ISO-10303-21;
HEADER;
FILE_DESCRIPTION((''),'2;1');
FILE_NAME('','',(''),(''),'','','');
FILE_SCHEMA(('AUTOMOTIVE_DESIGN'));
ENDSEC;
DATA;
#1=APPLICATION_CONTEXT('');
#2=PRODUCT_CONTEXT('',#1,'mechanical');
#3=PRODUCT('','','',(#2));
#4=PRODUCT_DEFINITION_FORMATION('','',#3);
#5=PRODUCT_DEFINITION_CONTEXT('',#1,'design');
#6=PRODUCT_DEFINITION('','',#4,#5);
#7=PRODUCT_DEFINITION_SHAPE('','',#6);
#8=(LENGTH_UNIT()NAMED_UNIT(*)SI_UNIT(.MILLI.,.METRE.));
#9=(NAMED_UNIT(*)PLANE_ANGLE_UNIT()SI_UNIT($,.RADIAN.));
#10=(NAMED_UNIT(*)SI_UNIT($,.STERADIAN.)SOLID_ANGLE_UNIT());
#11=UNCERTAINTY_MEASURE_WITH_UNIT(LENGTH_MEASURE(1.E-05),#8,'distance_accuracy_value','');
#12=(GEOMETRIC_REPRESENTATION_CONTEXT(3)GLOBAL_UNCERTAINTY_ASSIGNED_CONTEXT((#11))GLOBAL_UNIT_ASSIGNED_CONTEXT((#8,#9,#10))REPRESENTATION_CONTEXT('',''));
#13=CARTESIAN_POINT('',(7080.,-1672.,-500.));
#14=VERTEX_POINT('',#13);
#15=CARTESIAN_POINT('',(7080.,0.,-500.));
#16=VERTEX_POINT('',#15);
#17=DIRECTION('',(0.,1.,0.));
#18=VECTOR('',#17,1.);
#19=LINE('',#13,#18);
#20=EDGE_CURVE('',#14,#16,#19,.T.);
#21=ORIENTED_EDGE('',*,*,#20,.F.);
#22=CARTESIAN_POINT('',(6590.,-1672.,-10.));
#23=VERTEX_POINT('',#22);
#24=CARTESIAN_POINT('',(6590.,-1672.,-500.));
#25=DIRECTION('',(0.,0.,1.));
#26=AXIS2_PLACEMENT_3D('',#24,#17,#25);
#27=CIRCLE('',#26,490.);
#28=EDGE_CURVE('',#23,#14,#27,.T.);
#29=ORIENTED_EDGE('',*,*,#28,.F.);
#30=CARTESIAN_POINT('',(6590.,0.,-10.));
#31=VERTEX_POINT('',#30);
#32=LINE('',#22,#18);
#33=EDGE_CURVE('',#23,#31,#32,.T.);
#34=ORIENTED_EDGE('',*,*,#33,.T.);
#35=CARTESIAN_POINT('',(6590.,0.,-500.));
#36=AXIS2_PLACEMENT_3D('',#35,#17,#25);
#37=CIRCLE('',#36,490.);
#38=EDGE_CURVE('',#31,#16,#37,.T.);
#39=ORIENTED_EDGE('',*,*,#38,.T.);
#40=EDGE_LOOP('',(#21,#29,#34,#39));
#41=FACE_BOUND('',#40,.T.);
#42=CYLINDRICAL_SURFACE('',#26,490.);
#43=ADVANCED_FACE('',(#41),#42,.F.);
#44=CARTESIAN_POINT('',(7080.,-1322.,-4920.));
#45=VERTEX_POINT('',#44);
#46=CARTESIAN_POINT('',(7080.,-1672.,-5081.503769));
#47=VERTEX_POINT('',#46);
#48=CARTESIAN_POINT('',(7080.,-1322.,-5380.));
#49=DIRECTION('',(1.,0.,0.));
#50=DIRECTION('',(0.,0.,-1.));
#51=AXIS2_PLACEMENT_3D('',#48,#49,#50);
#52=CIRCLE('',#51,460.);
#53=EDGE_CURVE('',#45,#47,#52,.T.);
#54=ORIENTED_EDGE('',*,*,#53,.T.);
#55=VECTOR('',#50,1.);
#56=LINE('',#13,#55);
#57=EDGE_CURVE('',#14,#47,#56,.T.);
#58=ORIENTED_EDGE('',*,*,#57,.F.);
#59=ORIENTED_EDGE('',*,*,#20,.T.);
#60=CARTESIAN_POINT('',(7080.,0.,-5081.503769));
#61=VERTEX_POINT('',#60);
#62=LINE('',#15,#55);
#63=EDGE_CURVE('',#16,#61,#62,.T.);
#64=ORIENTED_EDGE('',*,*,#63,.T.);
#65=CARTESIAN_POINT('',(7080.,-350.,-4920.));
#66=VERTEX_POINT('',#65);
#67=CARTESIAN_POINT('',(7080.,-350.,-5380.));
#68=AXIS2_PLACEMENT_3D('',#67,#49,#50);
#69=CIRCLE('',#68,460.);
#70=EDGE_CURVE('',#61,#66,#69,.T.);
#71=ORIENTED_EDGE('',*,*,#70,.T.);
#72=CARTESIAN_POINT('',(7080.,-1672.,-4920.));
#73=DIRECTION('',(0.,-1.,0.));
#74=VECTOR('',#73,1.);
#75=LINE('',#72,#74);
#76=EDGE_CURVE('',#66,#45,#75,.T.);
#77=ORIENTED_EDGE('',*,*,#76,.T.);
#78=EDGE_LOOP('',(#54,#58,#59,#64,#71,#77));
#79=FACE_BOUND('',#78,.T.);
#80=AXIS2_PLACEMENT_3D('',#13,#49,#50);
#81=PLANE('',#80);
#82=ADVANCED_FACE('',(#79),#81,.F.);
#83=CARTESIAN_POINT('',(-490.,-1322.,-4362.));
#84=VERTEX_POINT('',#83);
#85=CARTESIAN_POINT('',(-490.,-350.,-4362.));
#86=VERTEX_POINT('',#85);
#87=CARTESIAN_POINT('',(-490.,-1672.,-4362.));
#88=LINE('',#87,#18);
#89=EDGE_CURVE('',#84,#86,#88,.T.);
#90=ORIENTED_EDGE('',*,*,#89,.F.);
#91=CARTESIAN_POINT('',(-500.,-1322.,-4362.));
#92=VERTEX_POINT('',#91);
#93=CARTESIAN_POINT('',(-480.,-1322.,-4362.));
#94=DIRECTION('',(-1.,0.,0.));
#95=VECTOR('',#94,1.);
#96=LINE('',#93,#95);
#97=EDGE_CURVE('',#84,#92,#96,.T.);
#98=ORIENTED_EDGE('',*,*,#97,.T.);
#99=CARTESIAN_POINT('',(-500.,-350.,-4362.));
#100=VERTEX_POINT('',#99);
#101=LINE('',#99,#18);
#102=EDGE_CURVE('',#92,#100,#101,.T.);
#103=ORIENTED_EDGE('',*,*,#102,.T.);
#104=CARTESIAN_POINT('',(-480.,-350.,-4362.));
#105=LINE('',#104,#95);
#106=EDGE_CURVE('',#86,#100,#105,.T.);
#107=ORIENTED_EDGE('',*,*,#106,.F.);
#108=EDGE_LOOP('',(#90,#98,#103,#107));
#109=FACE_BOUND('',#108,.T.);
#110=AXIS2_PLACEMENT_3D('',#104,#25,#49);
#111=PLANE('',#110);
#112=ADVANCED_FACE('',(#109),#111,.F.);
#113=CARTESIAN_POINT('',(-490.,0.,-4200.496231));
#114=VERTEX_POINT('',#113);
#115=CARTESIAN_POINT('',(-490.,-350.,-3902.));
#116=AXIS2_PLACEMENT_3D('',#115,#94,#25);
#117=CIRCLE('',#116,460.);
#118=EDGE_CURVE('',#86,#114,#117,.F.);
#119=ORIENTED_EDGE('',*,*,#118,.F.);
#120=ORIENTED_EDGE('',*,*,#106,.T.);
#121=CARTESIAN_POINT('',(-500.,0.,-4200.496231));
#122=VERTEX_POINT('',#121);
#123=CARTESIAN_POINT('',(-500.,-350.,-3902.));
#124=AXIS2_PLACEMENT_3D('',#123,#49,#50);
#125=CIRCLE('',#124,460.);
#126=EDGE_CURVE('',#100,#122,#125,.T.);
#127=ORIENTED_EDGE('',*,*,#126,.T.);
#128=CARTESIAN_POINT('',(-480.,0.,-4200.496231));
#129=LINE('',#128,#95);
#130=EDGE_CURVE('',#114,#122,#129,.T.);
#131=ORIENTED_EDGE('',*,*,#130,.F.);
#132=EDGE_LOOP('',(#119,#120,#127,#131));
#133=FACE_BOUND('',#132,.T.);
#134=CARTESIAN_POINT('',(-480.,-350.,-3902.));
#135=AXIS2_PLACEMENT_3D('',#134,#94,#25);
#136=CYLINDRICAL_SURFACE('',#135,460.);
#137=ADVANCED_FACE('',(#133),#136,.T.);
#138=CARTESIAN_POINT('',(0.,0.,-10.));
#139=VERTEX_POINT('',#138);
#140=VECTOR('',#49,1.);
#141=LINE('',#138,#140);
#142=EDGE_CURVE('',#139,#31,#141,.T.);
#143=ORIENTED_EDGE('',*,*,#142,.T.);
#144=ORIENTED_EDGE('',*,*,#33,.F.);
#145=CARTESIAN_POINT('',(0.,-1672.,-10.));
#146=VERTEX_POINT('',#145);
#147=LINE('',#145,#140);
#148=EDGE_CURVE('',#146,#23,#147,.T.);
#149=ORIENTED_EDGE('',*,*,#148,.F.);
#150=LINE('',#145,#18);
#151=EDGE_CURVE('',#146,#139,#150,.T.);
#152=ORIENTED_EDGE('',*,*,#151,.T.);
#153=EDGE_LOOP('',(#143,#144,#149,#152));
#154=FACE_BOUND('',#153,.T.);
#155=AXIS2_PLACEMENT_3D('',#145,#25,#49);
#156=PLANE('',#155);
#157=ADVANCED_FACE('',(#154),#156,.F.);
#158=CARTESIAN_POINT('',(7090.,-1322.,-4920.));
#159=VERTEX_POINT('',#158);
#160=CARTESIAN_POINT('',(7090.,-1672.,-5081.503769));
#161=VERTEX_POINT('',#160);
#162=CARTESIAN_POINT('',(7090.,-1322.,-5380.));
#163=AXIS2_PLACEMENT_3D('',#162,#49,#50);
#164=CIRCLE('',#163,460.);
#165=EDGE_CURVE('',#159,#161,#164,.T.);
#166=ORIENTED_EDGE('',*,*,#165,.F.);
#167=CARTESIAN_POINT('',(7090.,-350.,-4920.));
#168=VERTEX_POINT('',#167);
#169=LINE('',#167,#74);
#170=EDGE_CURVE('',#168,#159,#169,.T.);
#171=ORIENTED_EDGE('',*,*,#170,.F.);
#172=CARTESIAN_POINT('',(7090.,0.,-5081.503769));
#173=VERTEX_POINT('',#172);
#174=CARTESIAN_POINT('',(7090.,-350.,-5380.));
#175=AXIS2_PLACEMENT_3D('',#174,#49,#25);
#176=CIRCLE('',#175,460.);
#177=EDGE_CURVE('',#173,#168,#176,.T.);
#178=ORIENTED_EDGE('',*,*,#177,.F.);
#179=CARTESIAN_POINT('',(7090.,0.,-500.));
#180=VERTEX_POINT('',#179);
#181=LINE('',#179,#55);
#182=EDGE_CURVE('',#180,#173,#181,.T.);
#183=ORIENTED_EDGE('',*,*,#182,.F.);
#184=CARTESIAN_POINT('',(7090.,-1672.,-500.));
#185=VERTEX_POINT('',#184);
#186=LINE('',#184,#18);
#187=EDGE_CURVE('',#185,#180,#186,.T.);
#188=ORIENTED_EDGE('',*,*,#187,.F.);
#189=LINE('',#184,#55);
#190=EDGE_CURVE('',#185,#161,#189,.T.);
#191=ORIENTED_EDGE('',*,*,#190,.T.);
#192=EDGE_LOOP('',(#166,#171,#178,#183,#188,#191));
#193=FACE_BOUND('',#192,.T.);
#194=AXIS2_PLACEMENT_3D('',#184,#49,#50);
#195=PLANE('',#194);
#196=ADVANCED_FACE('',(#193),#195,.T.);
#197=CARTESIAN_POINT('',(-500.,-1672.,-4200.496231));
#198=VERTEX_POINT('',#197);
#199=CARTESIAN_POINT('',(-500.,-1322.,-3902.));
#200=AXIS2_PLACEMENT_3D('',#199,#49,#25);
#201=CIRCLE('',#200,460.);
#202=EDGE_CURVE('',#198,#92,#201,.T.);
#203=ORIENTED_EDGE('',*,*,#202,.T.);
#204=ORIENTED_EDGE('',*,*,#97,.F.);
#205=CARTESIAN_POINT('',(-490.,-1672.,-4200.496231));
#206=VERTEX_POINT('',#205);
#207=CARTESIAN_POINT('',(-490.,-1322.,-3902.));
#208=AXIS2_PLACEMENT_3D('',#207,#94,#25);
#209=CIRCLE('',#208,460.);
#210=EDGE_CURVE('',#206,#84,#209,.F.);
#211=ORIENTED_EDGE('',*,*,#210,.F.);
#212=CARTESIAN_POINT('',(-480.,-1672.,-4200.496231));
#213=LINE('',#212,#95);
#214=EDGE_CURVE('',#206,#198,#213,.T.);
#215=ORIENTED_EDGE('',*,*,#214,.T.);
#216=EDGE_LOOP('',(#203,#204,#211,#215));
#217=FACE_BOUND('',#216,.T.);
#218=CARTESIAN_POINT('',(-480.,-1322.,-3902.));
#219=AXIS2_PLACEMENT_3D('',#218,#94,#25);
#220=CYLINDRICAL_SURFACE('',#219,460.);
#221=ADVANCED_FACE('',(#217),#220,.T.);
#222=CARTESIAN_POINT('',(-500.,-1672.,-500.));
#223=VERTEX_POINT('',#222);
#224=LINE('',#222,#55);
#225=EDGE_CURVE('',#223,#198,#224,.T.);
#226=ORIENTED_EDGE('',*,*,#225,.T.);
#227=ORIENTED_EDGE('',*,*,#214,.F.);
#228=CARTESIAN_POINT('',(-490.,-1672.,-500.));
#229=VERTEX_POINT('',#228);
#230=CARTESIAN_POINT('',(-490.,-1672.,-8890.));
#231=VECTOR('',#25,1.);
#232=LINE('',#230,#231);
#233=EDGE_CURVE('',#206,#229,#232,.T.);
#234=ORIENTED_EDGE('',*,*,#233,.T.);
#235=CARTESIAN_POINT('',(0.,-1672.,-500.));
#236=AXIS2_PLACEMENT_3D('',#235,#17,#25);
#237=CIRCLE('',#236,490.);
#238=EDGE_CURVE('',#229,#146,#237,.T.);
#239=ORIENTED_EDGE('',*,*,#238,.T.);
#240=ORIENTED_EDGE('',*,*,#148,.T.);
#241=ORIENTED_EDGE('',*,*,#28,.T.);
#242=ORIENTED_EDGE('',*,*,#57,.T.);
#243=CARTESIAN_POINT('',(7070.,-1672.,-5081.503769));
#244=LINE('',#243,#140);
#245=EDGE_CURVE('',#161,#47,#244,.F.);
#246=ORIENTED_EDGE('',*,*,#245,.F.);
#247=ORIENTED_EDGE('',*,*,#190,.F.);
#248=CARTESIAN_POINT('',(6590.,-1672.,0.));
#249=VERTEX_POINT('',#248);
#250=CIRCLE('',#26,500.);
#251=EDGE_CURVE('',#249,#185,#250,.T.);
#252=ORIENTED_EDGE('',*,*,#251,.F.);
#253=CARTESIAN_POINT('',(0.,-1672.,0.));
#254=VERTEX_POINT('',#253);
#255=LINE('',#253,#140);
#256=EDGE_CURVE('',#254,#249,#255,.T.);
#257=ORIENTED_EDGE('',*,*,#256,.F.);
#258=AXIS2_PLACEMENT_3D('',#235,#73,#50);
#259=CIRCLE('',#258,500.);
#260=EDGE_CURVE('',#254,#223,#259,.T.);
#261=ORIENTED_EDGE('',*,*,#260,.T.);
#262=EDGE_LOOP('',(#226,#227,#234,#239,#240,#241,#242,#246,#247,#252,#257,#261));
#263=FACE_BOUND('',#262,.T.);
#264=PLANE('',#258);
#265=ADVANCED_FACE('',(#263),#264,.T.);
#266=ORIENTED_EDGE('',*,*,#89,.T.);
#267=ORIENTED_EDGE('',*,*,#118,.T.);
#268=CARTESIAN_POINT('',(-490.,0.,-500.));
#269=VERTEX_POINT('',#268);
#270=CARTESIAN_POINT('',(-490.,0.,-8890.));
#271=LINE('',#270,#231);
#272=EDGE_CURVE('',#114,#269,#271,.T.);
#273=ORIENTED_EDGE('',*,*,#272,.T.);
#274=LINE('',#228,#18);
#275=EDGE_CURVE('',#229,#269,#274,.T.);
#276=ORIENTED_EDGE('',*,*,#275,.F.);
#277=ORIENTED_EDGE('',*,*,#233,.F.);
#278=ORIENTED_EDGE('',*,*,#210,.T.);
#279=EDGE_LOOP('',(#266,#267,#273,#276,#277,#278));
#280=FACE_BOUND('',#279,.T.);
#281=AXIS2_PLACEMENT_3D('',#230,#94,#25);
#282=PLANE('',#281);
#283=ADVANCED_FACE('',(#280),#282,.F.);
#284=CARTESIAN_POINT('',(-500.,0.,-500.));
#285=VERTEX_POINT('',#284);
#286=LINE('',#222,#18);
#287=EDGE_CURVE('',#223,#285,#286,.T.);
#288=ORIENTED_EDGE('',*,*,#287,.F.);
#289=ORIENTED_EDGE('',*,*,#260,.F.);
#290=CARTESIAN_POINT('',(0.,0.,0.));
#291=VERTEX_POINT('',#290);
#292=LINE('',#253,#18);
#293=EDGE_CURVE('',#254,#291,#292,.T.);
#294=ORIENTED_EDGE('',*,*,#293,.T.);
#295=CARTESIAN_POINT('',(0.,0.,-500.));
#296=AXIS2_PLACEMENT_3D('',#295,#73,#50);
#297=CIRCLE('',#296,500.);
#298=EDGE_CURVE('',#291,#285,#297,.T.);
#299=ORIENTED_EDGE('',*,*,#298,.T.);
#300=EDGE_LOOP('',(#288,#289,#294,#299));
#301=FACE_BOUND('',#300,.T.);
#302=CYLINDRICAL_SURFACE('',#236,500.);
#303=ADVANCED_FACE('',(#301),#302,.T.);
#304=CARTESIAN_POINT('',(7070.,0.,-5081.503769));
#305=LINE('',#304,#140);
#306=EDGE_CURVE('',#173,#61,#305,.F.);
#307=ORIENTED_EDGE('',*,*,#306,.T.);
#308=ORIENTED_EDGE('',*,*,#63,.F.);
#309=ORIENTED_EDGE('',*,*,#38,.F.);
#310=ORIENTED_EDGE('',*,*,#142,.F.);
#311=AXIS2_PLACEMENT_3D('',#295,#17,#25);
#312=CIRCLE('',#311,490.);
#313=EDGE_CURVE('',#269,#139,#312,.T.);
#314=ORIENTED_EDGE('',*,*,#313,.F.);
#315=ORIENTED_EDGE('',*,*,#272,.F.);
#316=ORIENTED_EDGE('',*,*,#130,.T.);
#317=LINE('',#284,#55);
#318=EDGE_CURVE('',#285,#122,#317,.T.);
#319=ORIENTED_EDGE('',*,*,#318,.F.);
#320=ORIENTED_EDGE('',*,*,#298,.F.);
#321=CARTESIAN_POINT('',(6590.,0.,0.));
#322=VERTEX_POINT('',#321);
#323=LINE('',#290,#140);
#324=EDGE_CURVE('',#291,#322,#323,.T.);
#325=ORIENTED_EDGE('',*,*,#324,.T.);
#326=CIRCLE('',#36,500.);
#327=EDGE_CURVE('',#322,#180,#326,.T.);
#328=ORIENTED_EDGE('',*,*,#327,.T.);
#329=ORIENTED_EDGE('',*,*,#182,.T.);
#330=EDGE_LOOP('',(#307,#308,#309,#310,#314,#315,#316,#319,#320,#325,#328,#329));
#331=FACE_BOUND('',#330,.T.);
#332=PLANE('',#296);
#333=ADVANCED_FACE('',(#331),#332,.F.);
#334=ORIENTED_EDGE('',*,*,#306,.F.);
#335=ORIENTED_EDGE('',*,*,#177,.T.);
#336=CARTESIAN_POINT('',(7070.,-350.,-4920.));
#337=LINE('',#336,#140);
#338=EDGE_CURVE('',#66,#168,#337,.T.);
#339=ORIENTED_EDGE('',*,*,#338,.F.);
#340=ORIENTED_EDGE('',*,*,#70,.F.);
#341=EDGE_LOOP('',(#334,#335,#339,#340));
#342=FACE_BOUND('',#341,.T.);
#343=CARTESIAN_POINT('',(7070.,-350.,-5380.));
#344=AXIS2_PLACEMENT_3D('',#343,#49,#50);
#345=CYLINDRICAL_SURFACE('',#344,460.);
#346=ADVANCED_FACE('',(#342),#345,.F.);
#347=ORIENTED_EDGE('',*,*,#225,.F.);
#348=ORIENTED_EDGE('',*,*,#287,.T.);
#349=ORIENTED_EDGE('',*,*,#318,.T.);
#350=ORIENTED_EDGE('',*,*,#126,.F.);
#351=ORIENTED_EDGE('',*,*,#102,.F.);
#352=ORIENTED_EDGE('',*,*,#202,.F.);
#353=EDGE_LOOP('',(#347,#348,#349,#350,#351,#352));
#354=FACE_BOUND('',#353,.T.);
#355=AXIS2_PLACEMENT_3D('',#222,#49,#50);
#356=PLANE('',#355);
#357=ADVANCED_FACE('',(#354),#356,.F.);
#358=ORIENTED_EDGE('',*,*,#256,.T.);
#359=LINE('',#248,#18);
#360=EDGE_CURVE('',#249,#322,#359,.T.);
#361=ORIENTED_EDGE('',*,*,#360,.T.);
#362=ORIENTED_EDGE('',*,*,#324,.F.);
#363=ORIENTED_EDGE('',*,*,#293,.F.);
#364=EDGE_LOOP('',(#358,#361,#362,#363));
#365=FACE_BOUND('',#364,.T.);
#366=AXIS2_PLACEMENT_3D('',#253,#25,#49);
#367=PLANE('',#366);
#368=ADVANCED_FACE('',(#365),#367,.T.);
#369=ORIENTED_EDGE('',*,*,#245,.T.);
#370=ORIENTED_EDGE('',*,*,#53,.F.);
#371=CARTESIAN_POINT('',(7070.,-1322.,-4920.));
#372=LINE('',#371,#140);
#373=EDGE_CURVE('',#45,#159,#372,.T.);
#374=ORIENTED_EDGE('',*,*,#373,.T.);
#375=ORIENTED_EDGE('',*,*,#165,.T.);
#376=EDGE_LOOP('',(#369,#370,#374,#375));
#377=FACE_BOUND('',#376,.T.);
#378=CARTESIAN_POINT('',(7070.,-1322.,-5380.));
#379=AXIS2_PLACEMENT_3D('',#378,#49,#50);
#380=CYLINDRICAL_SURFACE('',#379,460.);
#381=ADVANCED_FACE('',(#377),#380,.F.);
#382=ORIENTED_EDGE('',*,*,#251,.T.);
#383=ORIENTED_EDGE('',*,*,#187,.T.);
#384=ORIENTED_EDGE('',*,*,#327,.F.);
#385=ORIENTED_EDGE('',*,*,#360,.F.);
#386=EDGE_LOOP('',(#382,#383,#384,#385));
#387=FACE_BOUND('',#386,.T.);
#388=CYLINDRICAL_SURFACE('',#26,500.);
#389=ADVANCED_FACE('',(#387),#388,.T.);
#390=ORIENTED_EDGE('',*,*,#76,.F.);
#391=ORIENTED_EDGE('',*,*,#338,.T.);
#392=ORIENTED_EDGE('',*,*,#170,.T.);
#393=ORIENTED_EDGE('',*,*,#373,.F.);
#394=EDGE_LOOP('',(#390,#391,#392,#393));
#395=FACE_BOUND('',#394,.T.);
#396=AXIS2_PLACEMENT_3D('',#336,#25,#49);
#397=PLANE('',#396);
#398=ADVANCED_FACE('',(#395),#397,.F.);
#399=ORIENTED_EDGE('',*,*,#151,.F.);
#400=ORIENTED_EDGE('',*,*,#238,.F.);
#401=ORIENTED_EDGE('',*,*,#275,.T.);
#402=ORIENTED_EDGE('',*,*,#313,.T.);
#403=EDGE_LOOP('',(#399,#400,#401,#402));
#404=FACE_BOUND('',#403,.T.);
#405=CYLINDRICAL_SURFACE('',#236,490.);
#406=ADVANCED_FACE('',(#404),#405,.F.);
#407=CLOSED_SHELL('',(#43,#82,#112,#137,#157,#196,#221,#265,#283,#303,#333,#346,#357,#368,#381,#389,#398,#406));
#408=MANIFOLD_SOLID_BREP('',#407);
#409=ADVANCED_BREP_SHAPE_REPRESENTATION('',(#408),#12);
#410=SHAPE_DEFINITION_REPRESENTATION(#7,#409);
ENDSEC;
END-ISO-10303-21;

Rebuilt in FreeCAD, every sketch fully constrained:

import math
import FreeCAD as App
import Part
import Sketcher
Q = App.Units.Quantity

doc = App.newDocument("Part")
body = doc.addObject("PartDesign::Body", "Body")

sketch1 = body.newObject("Sketcher::SketchObject", "Sketch")
sketch1.AttachmentSupport = (doc.getObject("XZ_Plane"), [""])
sketch1.MapMode = "FlatFace"
sketch1.addGeometry([
    Part.LineSegment(App.Vector(0, 0, 0), App.Vector(6590, 0, 0)),
    Part.ArcOfCircle(Part.Circle(App.Vector(6590, -500, 0), App.Vector(0, 0, 1), 500), math.radians(0), math.radians(90)),
    Part.LineSegment(App.Vector(7090, -500, 0), App.Vector(7090, -8890, 0)),
    Part.LineSegment(App.Vector(7090, -8890, 0), App.Vector(7080, -8890, 0)),
    Part.LineSegment(App.Vector(7080, -8890, 0), App.Vector(7080, -500, 0)),
    Part.ArcOfCircle(Part.Circle(App.Vector(6590, -500, 0), App.Vector(0, 0, 1), 490), math.radians(0), math.radians(90)),
    Part.LineSegment(App.Vector(6590, -10, 0), App.Vector(0, -10, 0)),
    Part.ArcOfCircle(Part.Circle(App.Vector(0, -500, 0), App.Vector(0, 0, 1), 490), math.radians(90), math.radians(180)),
    Part.LineSegment(App.Vector(-490, -500, 0), App.Vector(-490, -8890, 0)),
    Part.LineSegment(App.Vector(-490, -8890, 0), App.Vector(-500, -8890, 0)),
    Part.LineSegment(App.Vector(-500, -8890, 0), App.Vector(-500, -500, 0)),
    Part.ArcOfCircle(Part.Circle(App.Vector(0, -500, 0), App.Vector(0, 0, 1), 500), math.radians(90), math.radians(180)),
], False)
sketch1.addConstraint([
    Sketcher.Constraint("Tangent", 0, 2, 1, 2),
    Sketcher.Constraint("Tangent", 1, 1, 2, 1),
    Sketcher.Constraint("Coincident", 2, 2, 3, 1),
    Sketcher.Constraint("Coincident", 3, 2, 4, 1),
    Sketcher.Constraint("Tangent", 4, 2, 5, 1),
    Sketcher.Constraint("Tangent", 5, 2, 6, 1),
    Sketcher.Constraint("Tangent", 6, 2, 7, 1),
    Sketcher.Constraint("Tangent", 7, 2, 8, 1),
    Sketcher.Constraint("Coincident", 8, 2, 9, 1),
    Sketcher.Constraint("Coincident", 9, 2, 10, 1),
    Sketcher.Constraint("Tangent", 10, 2, 11, 2),
    Sketcher.Constraint("Tangent", 11, 1, 0, 1),
    Sketcher.Constraint("Horizontal", 0),
    Sketcher.Constraint("Vertical", 2),
    Sketcher.Constraint("Horizontal", 3),
    Sketcher.Constraint("Vertical", 4),
    Sketcher.Constraint("Horizontal", 6),
    Sketcher.Constraint("Vertical", 8),
    Sketcher.Constraint("Horizontal", 9),
    Sketcher.Constraint("Vertical", 10),
    Sketcher.Constraint("Coincident", 5, 3, 1, 3),
    Sketcher.Constraint("Coincident", 11, 3, 7, 3),
    Sketcher.Constraint("Equal", 5, 7),
    Sketcher.Constraint("PointOnObject", 7, 3, -2),
    Sketcher.Constraint("PointOnObject", 0, 2, -1),
    Sketcher.Constraint("Horizontal", 3, 2, 8, 2),
    Sketcher.Constraint("Radius", 1, Q("500 mm")),
    Sketcher.Constraint("Radius", 5, Q("490 mm")),
    Sketcher.Constraint("DistanceX", 0, 1, 0, 2, Q("6590 mm")),
    Sketcher.Constraint("DistanceY", 2, 2, 2, 1, Q("8390 mm")),
])
pad1 = body.newObject("PartDesign::Pad", "Pad")
pad1.Profile = sketch1
pad1.Length = 1672

sketch2 = body.newObject("Sketcher::SketchObject", "Sketch001")
sketch2.AttachmentSupport = (doc.getObject("YZ_Plane"), [""])
sketch2.MapMode = "FlatFace"
sketch2.AttachmentOffset = App.Placement(App.Vector(0, 0, -500), App.Rotation())
sketch2.addGeometry([
    Part.ArcOfCircle(Part.Circle(App.Vector(-350, -3902, 0), App.Vector(0, 0, 1), 460), math.radians(-90), math.radians(0)),
    Part.LineSegment(App.Vector(110, -3902, 0), App.Vector(110, -9056.882603, 0)),
    Part.LineSegment(App.Vector(110, -9056.882603, 0), App.Vector(-1782, -9056.882603, 0)),
    Part.LineSegment(App.Vector(-1782, -9056.882603, 0), App.Vector(-1782, -4822, 0)),
    Part.LineSegment(App.Vector(-1782, -4822, 0), App.Vector(-1770.951629, -4002.21195, 0)),
    Part.ArcOfCircle(Part.Circle(App.Vector(-1322, -3902, 0), App.Vector(0, 0, 1), 460), math.radians(-167.417094), math.radians(-90)),
    Part.LineSegment(App.Vector(-1322, -4362, 0), App.Vector(-350, -4362, 0)),
], False)
sketch2.addConstraint([
    Sketcher.Constraint("Tangent", 0, 2, 1, 1),
    Sketcher.Constraint("Coincident", 1, 2, 2, 1),
    Sketcher.Constraint("Coincident", 2, 2, 3, 1),
    Sketcher.Constraint("Coincident", 3, 2, 4, 1),
    Sketcher.Constraint("Coincident", 4, 2, 5, 1),
    Sketcher.Constraint("Tangent", 5, 2, 6, 1),
    Sketcher.Constraint("Tangent", 6, 2, 0, 1),
    Sketcher.Constraint("Vertical", 1),
    Sketcher.Constraint("Horizontal", 2),
    Sketcher.Constraint("Vertical", 3),
    Sketcher.Constraint("Horizontal", 6),
    Sketcher.Constraint("Equal", 0, 5),
    Sketcher.Constraint("Radius", 0, Q("460 mm")),
    Sketcher.Constraint("DistanceX", 2, 2, 2, 1, Q("1892 mm")),
    Sketcher.Constraint("DistanceX", 6, 1, 6, 2, Q("972 mm")),
    Sketcher.Constraint("DistanceX", 0, 3, -1, 1, Q("350 mm")),
    Sketcher.Constraint("DistanceY", 0, 3, -1, 1, Q("3902 mm")),
    Sketcher.Constraint("DistanceY", 3, 2, -1, 1, Q("4822 mm")),
    Sketcher.Constraint("DistanceY", 1, 2, 1, 1, Q("5154.882603 mm")),
    Sketcher.Constraint("DistanceX", 4, 2, -1, 1, Q("1770.951629 mm")),
])
pocket1 = body.newObject("PartDesign::Pocket", "Pocket")
pocket1.Profile = sketch2
pocket1.Length = 20
pocket1.Reversed = True

sketch3 = body.newObject("Sketcher::SketchObject", "Sketch002")
sketch3.AttachmentSupport = (doc.getObject("YZ_Plane"), [""])
sketch3.MapMode = "FlatFace"
sketch3.AttachmentOffset = App.Placement(App.Vector(0, 0, 7090), App.Rotation())
sketch3.addGeometry([
    Part.LineSegment(App.Vector(110, -9554.66965, 0), App.Vector(110, -5380, 0)),
    Part.ArcOfCircle(Part.Circle(App.Vector(-350, -5380, 0), App.Vector(0, 0, 1), 460), math.radians(0), math.radians(90)),
    Part.LineSegment(App.Vector(-350, -4920, 0), App.Vector(-1322, -4920, 0)),
    Part.ArcOfCircle(Part.Circle(App.Vector(-1322, -5380, 0), App.Vector(0, 0, 1), 460), math.radians(90), math.radians(180)),
    Part.LineSegment(App.Vector(-1782, -5380, 0), App.Vector(-1782, -9554.66965, 0)),
    Part.LineSegment(App.Vector(-1782, -9554.66965, 0), App.Vector(110, -9554.66965, 0)),
], False)
sketch3.addConstraint([
    Sketcher.Constraint("Tangent", 0, 2, 1, 1),
    Sketcher.Constraint("Tangent", 1, 2, 2, 1),
    Sketcher.Constraint("Tangent", 2, 2, 3, 1),
    Sketcher.Constraint("Tangent", 3, 2, 4, 1),
    Sketcher.Constraint("Coincident", 4, 2, 5, 1),
    Sketcher.Constraint("Coincident", 5, 2, 0, 1),
    Sketcher.Constraint("Vertical", 0),
    Sketcher.Constraint("Horizontal", 2),
    Sketcher.Constraint("Vertical", 4),
    Sketcher.Constraint("Horizontal", 5),
    Sketcher.Constraint("Equal", 1, 3),
    Sketcher.Constraint("Radius", 1, Q("460 mm")),
    Sketcher.Constraint("DistanceX", 2, 2, 2, 1, Q("972 mm")),
    Sketcher.Constraint("DistanceX", 1, 3, -1, 1, Q("350 mm")),
    Sketcher.Constraint("DistanceY", 1, 3, -1, 1, Q("5380 mm")),
    Sketcher.Constraint("DistanceY", 0, 1, 0, 2, Q("4174.66965 mm")),
])
pocket2 = body.newObject("PartDesign::Pocket", "Pocket001")
pocket2.Profile = sketch3
pocket2.Length = 20

doc.recompute()
